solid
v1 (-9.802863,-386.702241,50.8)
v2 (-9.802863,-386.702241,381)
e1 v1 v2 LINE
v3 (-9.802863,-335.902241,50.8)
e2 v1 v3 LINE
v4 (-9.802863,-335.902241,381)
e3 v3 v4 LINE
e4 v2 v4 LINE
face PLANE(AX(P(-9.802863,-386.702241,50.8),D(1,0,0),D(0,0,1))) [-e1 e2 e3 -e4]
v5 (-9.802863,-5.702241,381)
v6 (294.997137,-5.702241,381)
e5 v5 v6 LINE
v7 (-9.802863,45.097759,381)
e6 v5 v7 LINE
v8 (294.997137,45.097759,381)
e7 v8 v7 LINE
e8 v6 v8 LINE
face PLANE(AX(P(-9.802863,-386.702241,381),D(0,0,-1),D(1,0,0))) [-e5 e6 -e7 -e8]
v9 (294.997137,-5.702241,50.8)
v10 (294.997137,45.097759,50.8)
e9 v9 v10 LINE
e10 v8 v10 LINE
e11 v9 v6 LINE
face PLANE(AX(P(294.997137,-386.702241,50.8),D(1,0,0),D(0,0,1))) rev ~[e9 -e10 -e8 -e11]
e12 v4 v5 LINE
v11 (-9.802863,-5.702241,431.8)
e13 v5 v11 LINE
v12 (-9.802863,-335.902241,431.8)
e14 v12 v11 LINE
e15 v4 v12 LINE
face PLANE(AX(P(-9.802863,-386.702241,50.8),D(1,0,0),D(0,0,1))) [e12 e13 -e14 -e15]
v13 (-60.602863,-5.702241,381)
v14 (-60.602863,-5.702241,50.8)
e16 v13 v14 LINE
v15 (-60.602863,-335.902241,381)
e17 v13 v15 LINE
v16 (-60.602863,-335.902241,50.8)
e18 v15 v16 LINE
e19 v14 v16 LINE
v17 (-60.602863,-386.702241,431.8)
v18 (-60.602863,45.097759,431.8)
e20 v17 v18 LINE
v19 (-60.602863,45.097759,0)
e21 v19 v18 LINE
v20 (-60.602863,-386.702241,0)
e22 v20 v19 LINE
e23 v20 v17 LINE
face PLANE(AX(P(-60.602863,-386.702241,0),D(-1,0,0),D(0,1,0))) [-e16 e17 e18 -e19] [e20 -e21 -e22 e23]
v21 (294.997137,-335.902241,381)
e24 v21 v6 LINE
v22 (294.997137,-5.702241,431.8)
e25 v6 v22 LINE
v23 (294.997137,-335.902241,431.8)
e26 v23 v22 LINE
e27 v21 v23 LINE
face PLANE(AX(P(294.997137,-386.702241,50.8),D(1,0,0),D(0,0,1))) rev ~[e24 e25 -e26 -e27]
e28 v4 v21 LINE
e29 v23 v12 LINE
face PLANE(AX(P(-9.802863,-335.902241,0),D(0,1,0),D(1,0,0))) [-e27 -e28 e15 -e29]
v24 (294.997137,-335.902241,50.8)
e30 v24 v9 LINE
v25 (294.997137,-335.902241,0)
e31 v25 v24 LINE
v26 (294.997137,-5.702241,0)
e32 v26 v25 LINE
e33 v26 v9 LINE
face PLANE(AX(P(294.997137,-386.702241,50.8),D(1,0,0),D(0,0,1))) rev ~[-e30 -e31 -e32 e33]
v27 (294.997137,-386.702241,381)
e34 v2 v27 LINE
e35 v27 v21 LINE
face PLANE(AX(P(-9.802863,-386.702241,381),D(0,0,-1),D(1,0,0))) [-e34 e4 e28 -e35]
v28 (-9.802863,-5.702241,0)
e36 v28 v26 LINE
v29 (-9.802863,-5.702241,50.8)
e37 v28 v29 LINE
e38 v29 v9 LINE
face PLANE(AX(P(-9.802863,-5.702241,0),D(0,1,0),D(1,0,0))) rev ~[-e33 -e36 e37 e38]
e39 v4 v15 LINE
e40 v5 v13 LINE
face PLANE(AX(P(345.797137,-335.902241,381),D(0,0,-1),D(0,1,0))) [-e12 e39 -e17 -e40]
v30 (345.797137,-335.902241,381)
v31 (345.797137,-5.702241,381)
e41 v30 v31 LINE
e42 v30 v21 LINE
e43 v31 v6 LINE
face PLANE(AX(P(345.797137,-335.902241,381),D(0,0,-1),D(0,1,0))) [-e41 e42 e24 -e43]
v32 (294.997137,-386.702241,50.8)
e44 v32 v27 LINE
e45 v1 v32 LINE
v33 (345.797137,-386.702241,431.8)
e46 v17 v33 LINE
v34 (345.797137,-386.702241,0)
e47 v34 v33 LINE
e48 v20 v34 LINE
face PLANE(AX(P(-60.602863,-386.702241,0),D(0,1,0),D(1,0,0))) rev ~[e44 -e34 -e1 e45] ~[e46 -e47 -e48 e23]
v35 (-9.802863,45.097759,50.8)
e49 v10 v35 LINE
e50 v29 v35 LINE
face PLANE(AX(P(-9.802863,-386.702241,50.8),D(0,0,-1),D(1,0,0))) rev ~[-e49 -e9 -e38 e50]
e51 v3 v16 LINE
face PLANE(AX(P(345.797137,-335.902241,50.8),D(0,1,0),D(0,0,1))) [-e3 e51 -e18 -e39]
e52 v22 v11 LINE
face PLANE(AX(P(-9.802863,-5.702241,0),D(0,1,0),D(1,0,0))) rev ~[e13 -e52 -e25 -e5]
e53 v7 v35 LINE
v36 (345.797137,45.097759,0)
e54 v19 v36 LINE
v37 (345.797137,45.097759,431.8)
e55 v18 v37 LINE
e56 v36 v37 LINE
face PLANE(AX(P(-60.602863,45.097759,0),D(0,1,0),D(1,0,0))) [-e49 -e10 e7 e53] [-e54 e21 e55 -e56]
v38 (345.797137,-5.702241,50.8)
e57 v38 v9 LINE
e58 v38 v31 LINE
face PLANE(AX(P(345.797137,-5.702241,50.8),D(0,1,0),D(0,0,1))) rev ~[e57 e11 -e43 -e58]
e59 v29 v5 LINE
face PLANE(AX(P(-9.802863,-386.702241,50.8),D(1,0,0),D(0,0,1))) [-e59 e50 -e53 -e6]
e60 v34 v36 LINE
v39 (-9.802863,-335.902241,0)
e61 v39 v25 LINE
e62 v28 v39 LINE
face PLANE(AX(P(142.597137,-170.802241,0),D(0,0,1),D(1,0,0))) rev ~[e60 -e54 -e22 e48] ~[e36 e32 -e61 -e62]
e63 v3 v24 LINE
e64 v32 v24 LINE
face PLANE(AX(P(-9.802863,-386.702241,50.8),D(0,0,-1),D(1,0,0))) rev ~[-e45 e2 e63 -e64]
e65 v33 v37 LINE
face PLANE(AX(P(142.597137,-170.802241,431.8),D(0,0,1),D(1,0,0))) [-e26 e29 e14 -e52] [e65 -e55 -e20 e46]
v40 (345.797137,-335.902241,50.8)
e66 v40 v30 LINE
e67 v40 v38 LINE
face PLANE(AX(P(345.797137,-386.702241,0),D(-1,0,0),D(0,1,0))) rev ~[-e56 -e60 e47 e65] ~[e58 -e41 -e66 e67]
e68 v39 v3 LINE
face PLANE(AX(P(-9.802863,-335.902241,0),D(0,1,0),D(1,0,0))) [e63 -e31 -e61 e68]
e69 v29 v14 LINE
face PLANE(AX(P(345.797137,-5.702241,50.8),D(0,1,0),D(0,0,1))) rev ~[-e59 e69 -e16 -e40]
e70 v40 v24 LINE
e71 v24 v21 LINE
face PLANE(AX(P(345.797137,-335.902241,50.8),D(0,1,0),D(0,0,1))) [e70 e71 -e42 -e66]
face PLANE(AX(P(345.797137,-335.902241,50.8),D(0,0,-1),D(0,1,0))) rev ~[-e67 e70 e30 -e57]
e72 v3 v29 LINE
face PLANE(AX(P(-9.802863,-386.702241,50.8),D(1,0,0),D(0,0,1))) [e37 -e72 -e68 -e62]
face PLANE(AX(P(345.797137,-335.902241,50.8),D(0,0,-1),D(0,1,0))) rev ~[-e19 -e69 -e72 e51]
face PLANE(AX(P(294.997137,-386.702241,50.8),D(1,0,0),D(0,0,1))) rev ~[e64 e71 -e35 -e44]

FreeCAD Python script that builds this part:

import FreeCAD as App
import Part
import Sketcher
from FreeCAD import Vector
Q = App.Units.Quantity

doc = App.newDocument("Part")
body = doc.addObject("PartDesign::Body", "Body")

# Sketch on XY plane
sketch1 = body.newObject("Sketcher::SketchObject", "Sketch")
sketch1.AttachmentSupport = (doc.getObject("XY_Plane"), [""])
sketch1.MapMode = "FlatFace"
sketch1.addGeometry([
    Part.LineSegment(Vector(-61, 45, 0), Vector(-61, -387, 0)),
    Part.LineSegment(Vector(-61, -387, 0), Vector(346, -387, 0)),
    Part.LineSegment(Vector(346, -387, 0), Vector(346, 45, 0)),
    Part.LineSegment(Vector(346, 45, 0), Vector(-61, 45, 0)),
], False)
sketch1.addConstraint([
    Sketcher.Constraint("Coincident", 0, 2, 1, 1),
    Sketcher.Constraint("Coincident", 1, 2, 2, 1),
    Sketcher.Constraint("Coincident", 2, 2, 3, 1),
    Sketcher.Constraint("Coincident", 3, 2, 0, 1),
    Sketcher.Constraint("Vertical", 0),
    Sketcher.Constraint("Horizontal", 1),
    Sketcher.Constraint("Vertical", 2),
    Sketcher.Constraint("Horizontal", 3),
    Sketcher.Constraint("DistanceX", 1, 1, 1, 2, Q("16 in")),
    Sketcher.Constraint("DistanceY", 0, 2, 0, 1, Q("17 in")),
    Sketcher.Constraint("DistanceY", 0, 2, -1, 1, Q("386.702241 mm")),
    Sketcher.Constraint("DistanceX", 0, 2, -1, 1, Q("60.602863 mm")),
])
pad1 = body.newObject("PartDesign::Pad", "Pad")
pad1.Profile = sketch1
pad1.Length = Q("17 in")

# Sketch on XZ plane
sketch2 = body.newObject("Sketcher::SketchObject", "Sketch001")
sketch2.AttachmentSupport = (doc.getObject("XZ_Plane"), [""])
sketch2.MapMode = "FlatFace"
sketch2.AttachmentOffset = App.Placement(Vector(0, 0, 386.702241), App.Rotation())
sketch2.addGeometry([
    Part.LineSegment(Vector(-10, 381, 0), Vector(-10, 51, 0)),
    Part.LineSegment(Vector(-10, 51, 0), Vector(295, 51, 0)),
    Part.LineSegment(Vector(295, 51, 0), Vector(295, 381, 0)),
    Part.LineSegment(Vector(295, 381, 0), Vector(-10, 381, 0)),
], False)
sketch2.addConstraint([
    Sketcher.Constraint("Coincident", 0, 2, 1, 1),
    Sketcher.Constraint("Coincident", 1, 2, 2, 1),
    Sketcher.Constraint("Coincident", 2, 2, 3, 1),
    Sketcher.Constraint("Coincident", 3, 2, 0, 1),
    Sketcher.Constraint("Vertical", 0),
    Sketcher.Constraint("Horizontal", 1),
    Sketcher.Constraint("Vertical", 2),
    Sketcher.Constraint("Horizontal", 3),
    Sketcher.Constraint("DistanceX", 1, 1, 1, 2, Q("12 in")),
    Sketcher.Constraint("DistanceY", 0, 2, 0, 1, Q("13 in")),
    Sketcher.Constraint("DistanceY", -1, 1, 0, 2, Q("2 in")),
    Sketcher.Constraint("DistanceX", 0, 2, -1, 1, Q("9.802863 mm")),
])
pocket1 = body.newObject("PartDesign::Pocket", "Pocket")
pocket1.Profile = sketch2
pocket1.Length = Q("50 in")

# Sketch on XY plane
sketch3 = body.newObject("Sketcher::SketchObject", "Sketch002")
sketch3.AttachmentSupport = (doc.getObject("XY_Plane"), [""])
sketch3.MapMode = "FlatFace"
sketch3.addGeometry([
    Part.LineSegment(Vector(-10, -336, 0), Vector(-10, -6, 0)),
    Part.LineSegment(Vector(-10, -6, 0), Vector(295, -6, 0)),
    Part.LineSegment(Vector(295, -6, 0), Vector(295, -336, 0)),
    Part.LineSegment(Vector(295, -336, 0), Vector(-10, -336, 0)),
], False)
sketch3.addConstraint([
    Sketcher.Constraint("Coincident", 0, 2, 1, 1),
    Sketcher.Constraint("Coincident", 1, 2, 2, 1),
    Sketcher.Constraint("Coincident", 2, 2, 3, 1),
    Sketcher.Constraint("Coincident", 3, 2, 0, 1),
    Sketcher.Constraint("Vertical", 0),
    Sketcher.Constraint("Horizontal", 1),
    Sketcher.Constraint("Vertical", 2),
    Sketcher.Constraint("Horizontal", 3),
    Sketcher.Constraint("DistanceX", 1, 1, 1, 2, Q("12 in")),
    Sketcher.Constraint("DistanceY", 0, 1, 0, 2, Q("13 in")),
    Sketcher.Constraint("DistanceY", 0, 2, -1, 1, Q("5.702241 mm")),
    Sketcher.Constraint("DistanceX", 0, 2, -1, 1, Q("9.802863 mm")),
])
pocket2 = body.newObject("PartDesign::Pocket", "Pocket001")
pocket2.Profile = sketch3
pocket2.Length = Q("29.7 in")
pocket2.Reversed = True

# Sketch on YZ plane
sketch4 = body.newObject("Sketcher::SketchObject", "Sketch003")
sketch4.AttachmentSupport = (doc.getObject("YZ_Plane"), [""])
sketch4.MapMode = "FlatFace"
sketch4.AttachmentOffset = App.Placement(Vector(0, 0, 345.797137), App.Rotation())
sketch4.addGeometry([
    Part.LineSegment(Vector(-336, 381, 0), Vector(-336, 51, 0)),
    Part.LineSegment(Vector(-336, 51, 0), Vector(-6, 51, 0)),
    Part.LineSegment(Vector(-6, 51, 0), Vector(-6, 381, 0)),
    Part.LineSegment(Vector(-6, 381, 0), Vector(-336, 381, 0)),
], False)
sketch4.addConstraint([
    Sketcher.Constraint("Coincident", 0, 2, 1, 1),
    Sketcher.Constraint("Coincident", 1, 2, 2, 1),
    Sketcher.Constraint("Coincident", 2, 2, 3, 1),
    Sketcher.Constraint("Coincident", 3, 2, 0, 1),
    Sketcher.Constraint("Vertical", 0),
    Sketcher.Constraint("Horizontal", 1),
    Sketcher.Constraint("Vertical", 2),
    Sketcher.Constraint("Horizontal", 3),
    Sketcher.Constraint("Equal", 3, 0),
    Sketcher.Constraint("DistanceX", 1, 1, 1, 2, Q("13 in")),
    Sketcher.Constraint("DistanceY", -1, 1, 0, 2, Q("2 in")),
    Sketcher.Constraint("DistanceX", 0, 2, -1, 1, Q("335.902241 mm")),
])
pocket3 = body.newObject("PartDesign::Pocket", "Pocket002")
pocket3.Profile = sketch4
pocket3.Length = Q("50 in")

doc.recompute()
